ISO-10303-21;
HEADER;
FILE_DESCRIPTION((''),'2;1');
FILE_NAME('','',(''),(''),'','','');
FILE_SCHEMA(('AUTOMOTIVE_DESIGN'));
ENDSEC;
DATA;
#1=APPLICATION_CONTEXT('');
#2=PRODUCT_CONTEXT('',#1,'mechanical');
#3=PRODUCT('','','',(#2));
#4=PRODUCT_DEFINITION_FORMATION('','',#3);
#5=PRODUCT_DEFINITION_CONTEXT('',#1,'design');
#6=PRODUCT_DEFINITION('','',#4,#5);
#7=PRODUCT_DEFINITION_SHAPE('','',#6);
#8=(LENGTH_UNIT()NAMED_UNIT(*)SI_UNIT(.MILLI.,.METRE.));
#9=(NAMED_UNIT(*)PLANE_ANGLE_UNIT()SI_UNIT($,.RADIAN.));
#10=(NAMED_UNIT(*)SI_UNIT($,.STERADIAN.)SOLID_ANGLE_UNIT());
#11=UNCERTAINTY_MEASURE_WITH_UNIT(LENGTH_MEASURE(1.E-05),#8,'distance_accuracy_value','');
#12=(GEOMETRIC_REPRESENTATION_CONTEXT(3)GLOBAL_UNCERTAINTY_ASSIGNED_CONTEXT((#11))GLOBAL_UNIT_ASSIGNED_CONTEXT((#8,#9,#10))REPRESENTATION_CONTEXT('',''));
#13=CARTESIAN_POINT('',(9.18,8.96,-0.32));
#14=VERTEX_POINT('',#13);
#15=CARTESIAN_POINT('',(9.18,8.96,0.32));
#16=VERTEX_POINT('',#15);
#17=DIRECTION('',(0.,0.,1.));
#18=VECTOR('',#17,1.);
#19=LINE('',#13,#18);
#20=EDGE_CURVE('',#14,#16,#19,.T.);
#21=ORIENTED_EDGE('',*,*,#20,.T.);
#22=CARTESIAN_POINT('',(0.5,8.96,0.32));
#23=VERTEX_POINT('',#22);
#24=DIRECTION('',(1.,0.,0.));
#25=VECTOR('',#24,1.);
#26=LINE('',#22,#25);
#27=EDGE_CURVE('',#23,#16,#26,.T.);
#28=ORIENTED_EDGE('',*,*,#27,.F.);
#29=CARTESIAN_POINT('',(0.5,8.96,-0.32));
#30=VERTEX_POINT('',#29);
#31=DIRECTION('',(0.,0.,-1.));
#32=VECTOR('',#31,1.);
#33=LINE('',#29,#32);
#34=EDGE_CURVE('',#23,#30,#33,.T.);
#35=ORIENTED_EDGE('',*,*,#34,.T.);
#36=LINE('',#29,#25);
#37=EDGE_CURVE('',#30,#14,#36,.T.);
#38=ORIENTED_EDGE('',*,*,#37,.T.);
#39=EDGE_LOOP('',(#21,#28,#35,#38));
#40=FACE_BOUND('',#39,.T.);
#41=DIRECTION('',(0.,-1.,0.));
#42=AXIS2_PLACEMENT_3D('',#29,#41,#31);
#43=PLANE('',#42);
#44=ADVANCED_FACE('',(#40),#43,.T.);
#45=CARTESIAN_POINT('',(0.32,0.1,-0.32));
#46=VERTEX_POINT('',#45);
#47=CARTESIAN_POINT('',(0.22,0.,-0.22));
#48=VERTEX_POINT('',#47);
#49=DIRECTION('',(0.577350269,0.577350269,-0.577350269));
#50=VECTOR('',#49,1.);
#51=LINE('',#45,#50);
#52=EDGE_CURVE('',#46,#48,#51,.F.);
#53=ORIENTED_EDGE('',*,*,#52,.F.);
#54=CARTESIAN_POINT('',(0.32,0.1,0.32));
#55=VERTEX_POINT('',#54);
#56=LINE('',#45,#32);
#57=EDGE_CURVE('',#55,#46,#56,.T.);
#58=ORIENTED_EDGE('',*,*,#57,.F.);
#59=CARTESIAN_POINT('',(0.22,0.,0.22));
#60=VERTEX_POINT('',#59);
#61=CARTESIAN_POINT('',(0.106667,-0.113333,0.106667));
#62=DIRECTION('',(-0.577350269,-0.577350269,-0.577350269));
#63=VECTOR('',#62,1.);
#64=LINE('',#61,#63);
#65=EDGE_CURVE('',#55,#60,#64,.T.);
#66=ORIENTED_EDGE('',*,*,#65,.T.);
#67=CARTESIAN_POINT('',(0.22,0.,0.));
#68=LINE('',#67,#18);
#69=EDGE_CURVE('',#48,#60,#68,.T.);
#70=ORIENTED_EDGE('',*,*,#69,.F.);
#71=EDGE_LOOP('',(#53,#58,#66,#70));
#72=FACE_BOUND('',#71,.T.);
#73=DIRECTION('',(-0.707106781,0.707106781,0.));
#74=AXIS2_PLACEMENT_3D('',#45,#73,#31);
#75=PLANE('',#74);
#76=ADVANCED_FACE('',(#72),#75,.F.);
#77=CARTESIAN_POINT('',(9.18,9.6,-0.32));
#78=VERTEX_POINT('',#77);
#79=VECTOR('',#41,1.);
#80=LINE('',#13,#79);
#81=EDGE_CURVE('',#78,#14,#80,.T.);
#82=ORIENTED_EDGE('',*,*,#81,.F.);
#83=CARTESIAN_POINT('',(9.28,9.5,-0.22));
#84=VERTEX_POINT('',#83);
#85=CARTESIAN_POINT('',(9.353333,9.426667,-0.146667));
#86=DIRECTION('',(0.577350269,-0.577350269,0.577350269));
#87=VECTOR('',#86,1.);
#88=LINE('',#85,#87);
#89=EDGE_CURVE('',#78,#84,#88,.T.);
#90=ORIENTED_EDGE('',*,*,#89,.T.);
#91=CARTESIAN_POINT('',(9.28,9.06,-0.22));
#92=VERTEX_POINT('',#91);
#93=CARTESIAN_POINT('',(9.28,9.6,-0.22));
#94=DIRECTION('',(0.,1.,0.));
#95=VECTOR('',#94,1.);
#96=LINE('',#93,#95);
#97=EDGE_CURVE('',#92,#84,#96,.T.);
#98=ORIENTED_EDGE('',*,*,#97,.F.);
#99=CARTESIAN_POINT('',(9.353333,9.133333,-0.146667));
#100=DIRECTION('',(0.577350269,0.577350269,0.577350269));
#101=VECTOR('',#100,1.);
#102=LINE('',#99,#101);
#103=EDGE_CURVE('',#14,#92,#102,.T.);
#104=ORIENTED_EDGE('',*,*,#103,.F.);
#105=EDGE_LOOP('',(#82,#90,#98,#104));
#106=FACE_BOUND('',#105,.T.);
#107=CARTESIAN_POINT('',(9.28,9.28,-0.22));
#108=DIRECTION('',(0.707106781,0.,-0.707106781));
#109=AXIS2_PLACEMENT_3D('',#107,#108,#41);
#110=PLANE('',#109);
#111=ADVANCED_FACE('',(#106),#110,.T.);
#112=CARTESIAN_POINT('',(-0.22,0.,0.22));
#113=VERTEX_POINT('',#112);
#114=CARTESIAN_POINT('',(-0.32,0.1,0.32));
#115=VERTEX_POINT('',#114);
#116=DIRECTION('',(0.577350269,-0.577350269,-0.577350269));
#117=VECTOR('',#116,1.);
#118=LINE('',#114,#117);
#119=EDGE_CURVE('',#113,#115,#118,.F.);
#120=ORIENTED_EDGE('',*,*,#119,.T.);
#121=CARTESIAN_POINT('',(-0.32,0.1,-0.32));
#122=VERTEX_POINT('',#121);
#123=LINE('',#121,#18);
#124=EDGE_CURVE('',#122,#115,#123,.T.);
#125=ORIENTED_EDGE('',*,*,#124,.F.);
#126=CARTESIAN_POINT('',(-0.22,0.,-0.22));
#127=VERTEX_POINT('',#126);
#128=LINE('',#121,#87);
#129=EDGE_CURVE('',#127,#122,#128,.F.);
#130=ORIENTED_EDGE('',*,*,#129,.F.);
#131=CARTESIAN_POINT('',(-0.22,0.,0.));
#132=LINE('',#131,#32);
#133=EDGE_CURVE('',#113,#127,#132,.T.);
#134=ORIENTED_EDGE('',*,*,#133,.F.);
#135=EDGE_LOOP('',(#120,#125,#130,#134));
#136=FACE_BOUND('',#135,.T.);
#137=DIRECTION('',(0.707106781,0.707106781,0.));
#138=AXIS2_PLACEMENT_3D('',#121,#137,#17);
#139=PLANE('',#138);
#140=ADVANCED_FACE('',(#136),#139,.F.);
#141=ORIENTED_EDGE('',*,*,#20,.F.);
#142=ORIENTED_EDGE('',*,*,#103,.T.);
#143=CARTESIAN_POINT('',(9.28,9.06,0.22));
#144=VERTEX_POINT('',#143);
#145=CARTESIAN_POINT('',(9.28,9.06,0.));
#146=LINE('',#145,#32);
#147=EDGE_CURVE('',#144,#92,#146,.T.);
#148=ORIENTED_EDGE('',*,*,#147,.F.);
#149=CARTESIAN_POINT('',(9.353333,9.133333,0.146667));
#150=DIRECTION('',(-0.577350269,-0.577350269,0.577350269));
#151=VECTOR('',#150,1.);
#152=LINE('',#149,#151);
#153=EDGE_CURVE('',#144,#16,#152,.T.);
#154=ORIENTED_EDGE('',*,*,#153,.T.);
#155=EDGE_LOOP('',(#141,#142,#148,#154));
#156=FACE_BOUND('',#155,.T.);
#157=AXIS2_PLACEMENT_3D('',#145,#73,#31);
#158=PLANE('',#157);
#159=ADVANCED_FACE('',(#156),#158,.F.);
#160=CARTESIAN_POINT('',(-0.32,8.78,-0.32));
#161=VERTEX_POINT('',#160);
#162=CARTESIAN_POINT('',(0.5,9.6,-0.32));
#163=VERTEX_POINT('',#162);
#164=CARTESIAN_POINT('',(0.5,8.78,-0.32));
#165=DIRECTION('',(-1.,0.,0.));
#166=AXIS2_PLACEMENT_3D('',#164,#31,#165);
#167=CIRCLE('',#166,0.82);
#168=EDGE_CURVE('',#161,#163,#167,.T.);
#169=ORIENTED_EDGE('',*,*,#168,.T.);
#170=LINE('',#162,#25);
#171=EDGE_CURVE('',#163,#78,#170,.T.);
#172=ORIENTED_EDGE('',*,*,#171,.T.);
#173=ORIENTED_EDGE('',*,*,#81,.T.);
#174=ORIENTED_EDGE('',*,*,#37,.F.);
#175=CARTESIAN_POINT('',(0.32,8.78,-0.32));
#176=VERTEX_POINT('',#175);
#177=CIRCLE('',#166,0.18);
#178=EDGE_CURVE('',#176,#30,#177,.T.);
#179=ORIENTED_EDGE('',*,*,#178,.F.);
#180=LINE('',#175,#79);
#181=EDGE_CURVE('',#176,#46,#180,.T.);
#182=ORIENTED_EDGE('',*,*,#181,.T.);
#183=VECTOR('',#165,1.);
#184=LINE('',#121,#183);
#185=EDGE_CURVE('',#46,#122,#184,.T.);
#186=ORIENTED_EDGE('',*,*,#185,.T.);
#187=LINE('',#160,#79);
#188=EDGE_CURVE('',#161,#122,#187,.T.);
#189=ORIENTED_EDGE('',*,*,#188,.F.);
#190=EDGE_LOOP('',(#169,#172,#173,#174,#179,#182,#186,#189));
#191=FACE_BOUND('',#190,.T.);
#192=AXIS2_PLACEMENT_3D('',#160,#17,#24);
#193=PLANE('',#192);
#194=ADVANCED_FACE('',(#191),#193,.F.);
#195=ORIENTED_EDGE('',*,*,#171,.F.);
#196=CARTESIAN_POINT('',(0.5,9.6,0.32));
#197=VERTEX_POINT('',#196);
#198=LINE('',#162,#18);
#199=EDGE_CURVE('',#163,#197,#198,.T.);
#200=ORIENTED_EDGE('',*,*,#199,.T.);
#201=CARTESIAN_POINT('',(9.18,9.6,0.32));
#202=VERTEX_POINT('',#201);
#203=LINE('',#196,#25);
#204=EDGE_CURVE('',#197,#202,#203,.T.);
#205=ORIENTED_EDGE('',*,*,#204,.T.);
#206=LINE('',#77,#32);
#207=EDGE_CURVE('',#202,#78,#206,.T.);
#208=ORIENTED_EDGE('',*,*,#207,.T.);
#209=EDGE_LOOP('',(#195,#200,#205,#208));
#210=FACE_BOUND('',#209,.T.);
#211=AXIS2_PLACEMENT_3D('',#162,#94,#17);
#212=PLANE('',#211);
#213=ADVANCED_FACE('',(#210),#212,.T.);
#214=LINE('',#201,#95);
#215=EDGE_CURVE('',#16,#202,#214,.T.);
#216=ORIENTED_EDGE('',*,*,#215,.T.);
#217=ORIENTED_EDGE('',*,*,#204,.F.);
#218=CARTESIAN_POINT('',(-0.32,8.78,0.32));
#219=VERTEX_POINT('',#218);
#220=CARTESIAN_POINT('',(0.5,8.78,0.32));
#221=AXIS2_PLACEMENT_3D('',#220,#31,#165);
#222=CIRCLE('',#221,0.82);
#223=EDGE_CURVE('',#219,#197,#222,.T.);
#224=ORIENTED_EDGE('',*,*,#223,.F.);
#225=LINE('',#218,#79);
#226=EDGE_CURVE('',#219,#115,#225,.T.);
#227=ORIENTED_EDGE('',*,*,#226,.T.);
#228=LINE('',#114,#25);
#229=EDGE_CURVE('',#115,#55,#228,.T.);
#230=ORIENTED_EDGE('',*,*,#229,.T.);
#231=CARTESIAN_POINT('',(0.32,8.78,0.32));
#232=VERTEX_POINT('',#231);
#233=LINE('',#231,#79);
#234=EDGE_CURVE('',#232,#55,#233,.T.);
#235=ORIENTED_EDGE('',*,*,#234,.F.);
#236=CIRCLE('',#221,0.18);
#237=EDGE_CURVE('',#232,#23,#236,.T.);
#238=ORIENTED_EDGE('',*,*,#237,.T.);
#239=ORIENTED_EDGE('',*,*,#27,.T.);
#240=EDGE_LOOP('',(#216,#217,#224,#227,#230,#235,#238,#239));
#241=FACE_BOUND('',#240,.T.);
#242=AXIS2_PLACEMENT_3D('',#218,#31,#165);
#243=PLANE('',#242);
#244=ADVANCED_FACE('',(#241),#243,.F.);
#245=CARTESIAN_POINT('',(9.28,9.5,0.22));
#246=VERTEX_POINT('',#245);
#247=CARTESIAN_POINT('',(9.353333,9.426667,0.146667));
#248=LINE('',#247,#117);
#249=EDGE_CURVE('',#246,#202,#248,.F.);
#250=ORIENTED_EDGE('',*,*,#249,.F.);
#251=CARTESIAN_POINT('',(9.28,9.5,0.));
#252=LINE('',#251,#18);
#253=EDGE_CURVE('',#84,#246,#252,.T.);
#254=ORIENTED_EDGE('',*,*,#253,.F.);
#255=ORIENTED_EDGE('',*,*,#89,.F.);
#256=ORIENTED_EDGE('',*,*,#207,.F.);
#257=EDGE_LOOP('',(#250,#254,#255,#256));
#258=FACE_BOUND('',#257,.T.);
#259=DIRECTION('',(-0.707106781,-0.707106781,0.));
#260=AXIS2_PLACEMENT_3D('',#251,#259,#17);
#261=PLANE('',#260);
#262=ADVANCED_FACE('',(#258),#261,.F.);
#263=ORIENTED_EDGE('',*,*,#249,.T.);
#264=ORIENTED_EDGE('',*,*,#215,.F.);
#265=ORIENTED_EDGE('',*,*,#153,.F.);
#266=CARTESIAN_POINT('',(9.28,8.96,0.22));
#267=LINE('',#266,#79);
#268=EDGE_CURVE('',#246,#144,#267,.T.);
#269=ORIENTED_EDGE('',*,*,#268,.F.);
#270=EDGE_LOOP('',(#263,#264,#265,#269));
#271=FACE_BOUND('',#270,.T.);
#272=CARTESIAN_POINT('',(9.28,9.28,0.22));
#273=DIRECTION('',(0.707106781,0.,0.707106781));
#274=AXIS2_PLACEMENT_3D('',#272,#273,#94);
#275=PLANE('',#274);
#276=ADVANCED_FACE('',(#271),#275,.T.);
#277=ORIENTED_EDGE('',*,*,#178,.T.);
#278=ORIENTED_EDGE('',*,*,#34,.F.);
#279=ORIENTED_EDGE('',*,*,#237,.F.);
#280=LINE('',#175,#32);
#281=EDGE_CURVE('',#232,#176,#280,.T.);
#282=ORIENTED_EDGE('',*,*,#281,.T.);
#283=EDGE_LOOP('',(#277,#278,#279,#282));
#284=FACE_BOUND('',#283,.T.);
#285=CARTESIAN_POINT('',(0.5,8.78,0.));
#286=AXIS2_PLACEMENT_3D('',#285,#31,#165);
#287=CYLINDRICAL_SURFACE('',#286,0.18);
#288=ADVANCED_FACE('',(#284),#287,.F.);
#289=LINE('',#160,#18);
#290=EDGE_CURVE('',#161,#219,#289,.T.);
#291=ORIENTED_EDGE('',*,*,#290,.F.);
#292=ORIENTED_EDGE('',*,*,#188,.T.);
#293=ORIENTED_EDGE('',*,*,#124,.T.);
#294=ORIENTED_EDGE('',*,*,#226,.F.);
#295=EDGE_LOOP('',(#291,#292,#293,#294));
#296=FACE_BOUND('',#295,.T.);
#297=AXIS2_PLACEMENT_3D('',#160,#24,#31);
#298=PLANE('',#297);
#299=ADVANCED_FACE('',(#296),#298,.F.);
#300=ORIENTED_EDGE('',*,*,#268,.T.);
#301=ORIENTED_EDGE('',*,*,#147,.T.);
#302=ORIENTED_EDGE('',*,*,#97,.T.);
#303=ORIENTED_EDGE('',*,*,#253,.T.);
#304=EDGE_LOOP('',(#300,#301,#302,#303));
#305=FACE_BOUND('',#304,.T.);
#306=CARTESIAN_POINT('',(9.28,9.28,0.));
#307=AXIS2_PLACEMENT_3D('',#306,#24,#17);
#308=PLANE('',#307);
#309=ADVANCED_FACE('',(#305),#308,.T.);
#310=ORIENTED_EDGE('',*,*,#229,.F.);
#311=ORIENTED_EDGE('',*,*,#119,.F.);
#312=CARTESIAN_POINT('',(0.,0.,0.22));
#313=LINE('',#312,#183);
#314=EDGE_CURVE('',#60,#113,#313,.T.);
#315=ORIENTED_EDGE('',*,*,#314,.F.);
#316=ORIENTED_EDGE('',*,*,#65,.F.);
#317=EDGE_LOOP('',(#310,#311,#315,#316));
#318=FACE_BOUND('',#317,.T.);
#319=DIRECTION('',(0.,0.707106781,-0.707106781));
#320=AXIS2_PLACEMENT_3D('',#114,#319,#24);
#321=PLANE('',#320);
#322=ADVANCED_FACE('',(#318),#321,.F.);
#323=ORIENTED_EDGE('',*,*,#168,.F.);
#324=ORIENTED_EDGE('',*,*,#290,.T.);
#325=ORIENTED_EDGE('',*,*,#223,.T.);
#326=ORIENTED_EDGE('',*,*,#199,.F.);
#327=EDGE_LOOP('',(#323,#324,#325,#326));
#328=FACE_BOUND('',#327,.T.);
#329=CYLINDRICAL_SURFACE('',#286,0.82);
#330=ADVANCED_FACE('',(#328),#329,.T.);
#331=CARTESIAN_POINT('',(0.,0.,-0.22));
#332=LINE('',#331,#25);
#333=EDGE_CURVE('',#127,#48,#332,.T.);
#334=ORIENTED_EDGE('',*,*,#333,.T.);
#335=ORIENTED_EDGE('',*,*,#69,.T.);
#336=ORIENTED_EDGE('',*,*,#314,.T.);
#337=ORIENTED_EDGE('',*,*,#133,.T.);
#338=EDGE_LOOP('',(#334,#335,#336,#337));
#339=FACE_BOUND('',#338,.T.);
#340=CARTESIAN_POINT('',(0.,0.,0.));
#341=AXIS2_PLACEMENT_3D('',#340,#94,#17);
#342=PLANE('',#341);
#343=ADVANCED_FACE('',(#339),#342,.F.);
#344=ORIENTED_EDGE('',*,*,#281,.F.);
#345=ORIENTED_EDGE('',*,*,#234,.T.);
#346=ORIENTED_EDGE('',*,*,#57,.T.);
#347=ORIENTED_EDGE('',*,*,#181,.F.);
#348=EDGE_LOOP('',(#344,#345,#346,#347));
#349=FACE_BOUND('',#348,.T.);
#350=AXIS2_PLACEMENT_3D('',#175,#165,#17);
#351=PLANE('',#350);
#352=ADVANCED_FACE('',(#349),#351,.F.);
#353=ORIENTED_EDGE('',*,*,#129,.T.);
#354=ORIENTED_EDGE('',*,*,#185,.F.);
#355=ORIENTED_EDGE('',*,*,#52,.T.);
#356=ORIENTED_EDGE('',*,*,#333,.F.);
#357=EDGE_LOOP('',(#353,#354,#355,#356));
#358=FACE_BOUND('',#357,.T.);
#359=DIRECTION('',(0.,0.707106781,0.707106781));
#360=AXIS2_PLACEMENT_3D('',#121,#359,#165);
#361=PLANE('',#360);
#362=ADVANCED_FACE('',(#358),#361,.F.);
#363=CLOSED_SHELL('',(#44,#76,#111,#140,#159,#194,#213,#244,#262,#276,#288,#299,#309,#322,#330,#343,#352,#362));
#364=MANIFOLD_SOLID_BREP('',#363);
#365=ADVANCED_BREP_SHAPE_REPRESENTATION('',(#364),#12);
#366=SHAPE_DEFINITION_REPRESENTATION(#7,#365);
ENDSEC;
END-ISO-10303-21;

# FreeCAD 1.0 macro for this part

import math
import FreeCAD as App
import Part
import Sketcher
from FreeCAD import Vector


def edges_at(feature, points):
    """Names of the edges that pass closest to the given points."""
    edges = feature.Shape.Edges
    near = lambda p: min(range(len(edges)), key=lambda i: edges[i].distToShape(Part.Vertex(*p))[0])
    return sorted({f"Edge{near(p) + 1}" for p in points})

doc = App.newDocument("Part")
body = doc.addObject("PartDesign::Body", "Body")

# Sketch on XZ plane
sketch1 = body.newObject("Sketcher::SketchObject", "Sketch")
sketch1.AttachmentSupport = (doc.getObject("XZ_Plane"), [""])
sketch1.MapMode = "FlatFace"
sketch1.addGeometry([
    Part.LineSegment(Vector(-0.3, -0.3, 0), Vector(-0.3, 0.3, 0)),
    Part.LineSegment(Vector(-0.3, 0.3, 0), Vector(0.3, 0.3, 0)),
    Part.LineSegment(Vector(0.3, 0.3, 0), Vector(0.3, -0.3, 0)),
    Part.LineSegment(Vector(0.3, -0.3, 0), Vector(-0.3, -0.3, 0)),
], False)
sketch1.addConstraint([
    Sketcher.Constraint("Coincident", 0, 2, 1, 1),
    Sketcher.Constraint("Coincident", 1, 2, 2, 1),
    Sketcher.Constraint("Coincident", 2, 2, 3, 1),
    Sketcher.Constraint("Coincident", 3, 2, 0, 1),
    Sketcher.Constraint("Vertical", 0),
    Sketcher.Constraint("Horizontal", 1),
    Sketcher.Constraint("Vertical", 2),
    Sketcher.Constraint("Horizontal", 3),
    Sketcher.Constraint("Symmetric", 0, 2, 2, 2, -1, 1),
    Sketcher.Constraint("Equal", 3, 0),
    Sketcher.Constraint("DistanceX", 1, 1, 1, 2, 0.64),
])

# Sketch on XY plane
sketch2 = body.newObject("Sketcher::SketchObject", "Sketch001")
sketch2.AttachmentSupport = (doc.getObject("XY_Plane"), [""])
sketch2.MapMode = "FlatFace"
sketch2.addGeometry([
    Part.LineSegment(Vector(0, 0, 0), Vector(0, 8.78, 0)),
    Part.ArcOfCircle(Part.Circle(Vector(0.5, 8.78, 0), Vector(0, 0, 1), 0.5), math.radians(90), math.radians(180)),
    Part.LineSegment(Vector(0.5, 9.28, 0), Vector(9.28, 9.28, 0)),
], False)
sketch2.addConstraint([
    Sketcher.Constraint("Tangent", 0, 2, 1, 2),
    Sketcher.Constraint("Tangent", 1, 1, 2, 1),
    Sketcher.Constraint("Vertical", 0),
    Sketcher.Constraint("Horizontal", 2),
    Sketcher.Constraint("Coincident", 0, 1, -1, 1),
    Sketcher.Constraint("Equal", 2, 0),
    Sketcher.Constraint("Radius", 1, 0.5),
    Sketcher.Constraint("DistanceX", 2, 1, 2, 2, 8.78),
])
doc.recompute()

additivepipe = body.newObject("PartDesign::AdditivePipe", "AdditivePipe")
additivepipe.Profile = sketch1
additivepipe.Spine = (sketch2, ["Edge1", "Edge2", "Edge3"])
doc.recompute()

chamfer = body.newObject("PartDesign::Chamfer", "Chamfer")
chamfer.Base = (additivepipe, edges_at(additivepipe, [
    (9.28, 8.96, 0),
    (9.28, 9.28, 0.32),
    (9.28, 9.6, 0),
    (9.28, 9.28, -0.32),
    (0, 0, 0.32),
    (-0.32, 0, 0),
    (0, 0, -0.32),
    (0.32, 0, 0),
]))
chamfer.Size = 0.1

doc.recompute()
